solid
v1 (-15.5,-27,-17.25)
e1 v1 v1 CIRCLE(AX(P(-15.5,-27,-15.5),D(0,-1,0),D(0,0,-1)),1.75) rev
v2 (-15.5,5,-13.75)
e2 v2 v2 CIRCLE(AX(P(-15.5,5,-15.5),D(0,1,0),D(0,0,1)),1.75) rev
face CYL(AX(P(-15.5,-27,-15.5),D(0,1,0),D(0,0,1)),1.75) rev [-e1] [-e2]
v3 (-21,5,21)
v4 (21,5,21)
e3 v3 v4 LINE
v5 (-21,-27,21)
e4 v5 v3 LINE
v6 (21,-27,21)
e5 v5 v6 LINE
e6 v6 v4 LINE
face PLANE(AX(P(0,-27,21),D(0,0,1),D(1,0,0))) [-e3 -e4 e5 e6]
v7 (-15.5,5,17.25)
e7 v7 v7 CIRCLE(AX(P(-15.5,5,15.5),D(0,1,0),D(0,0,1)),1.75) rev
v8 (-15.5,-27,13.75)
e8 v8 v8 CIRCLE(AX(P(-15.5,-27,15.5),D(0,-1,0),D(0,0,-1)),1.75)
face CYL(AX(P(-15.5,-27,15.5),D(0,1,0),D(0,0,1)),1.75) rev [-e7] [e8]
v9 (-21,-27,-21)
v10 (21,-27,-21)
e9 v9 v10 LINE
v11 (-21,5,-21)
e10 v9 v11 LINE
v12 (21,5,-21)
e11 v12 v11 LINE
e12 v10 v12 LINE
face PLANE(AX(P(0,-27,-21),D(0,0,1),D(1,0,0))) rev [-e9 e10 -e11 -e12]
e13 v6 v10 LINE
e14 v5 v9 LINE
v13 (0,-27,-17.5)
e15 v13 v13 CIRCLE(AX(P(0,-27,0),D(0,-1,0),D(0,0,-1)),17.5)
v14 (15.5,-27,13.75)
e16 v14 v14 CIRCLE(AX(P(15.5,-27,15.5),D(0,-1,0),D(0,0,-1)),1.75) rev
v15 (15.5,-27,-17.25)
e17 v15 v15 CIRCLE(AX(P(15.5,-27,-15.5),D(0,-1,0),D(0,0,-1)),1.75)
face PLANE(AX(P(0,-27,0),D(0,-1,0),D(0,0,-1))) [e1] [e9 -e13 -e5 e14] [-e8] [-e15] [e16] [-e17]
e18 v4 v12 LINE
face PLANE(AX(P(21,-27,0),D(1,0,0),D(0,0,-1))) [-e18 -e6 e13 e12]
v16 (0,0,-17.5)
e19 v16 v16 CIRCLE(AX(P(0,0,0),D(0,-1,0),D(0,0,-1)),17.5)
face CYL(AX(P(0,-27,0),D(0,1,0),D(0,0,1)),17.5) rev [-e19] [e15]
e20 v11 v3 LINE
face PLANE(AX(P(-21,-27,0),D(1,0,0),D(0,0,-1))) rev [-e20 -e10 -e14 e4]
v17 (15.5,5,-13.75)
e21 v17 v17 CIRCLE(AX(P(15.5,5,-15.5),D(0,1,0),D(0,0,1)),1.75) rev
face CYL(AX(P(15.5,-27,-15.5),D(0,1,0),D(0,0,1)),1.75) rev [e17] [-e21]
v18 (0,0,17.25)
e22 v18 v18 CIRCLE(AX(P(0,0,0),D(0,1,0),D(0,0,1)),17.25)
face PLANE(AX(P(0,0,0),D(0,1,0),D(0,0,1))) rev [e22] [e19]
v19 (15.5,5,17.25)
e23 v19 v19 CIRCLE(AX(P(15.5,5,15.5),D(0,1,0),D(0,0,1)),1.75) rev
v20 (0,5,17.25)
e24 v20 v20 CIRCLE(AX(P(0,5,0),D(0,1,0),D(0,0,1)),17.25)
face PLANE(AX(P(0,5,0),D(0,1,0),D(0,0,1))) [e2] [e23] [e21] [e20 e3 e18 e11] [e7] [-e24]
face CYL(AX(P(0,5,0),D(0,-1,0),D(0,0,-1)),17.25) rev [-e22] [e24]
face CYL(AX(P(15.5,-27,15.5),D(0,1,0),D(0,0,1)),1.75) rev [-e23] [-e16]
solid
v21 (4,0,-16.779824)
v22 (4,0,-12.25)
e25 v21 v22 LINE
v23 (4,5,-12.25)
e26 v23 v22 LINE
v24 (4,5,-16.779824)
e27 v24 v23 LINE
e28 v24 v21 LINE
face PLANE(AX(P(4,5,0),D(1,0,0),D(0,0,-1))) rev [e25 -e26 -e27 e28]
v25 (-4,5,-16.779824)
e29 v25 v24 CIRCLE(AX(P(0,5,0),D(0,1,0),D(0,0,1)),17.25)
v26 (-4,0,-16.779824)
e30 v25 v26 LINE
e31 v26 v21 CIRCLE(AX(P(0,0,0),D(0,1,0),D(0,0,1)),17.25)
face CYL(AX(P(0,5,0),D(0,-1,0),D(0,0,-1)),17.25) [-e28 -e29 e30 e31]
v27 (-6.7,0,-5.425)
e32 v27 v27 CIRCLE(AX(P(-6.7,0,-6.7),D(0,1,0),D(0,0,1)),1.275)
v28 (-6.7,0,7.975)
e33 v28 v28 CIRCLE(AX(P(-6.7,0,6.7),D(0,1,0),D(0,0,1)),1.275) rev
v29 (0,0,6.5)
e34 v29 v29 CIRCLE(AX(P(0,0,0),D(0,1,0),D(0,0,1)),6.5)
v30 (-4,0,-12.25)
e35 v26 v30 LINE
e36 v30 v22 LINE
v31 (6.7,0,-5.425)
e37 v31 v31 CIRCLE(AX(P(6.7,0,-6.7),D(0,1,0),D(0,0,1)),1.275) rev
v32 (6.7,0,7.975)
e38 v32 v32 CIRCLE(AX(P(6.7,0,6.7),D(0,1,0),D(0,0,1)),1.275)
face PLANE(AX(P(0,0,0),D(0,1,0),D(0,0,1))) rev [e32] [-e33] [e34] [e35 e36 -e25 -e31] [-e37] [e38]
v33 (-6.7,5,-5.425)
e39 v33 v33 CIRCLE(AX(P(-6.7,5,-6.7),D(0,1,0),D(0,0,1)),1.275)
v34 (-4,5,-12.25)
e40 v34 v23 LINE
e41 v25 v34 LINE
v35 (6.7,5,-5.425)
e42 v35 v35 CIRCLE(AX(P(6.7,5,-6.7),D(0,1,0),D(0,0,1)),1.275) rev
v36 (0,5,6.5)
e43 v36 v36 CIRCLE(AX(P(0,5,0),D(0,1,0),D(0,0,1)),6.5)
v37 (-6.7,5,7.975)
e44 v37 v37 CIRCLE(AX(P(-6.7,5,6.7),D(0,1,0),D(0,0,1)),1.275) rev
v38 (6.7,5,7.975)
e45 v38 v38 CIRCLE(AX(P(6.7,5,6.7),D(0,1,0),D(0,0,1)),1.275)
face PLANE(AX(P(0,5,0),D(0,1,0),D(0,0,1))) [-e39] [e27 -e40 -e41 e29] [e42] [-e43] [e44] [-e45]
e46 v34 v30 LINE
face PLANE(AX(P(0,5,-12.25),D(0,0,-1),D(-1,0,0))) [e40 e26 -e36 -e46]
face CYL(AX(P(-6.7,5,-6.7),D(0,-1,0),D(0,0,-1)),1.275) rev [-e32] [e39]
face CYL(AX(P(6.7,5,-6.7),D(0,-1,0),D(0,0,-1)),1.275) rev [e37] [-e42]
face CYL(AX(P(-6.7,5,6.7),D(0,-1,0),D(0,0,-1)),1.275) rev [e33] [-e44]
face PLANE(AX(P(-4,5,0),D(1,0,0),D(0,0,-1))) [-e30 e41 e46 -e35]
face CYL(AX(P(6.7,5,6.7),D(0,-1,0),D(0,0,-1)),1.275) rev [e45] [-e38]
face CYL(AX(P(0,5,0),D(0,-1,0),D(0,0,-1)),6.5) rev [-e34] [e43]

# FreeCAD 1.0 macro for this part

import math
import FreeCAD as App
import Part
import Sketcher
from FreeCAD import Vector
Q = App.Units.Quantity


def add_polygon(sketch, points):
    """Adds a closed chain of lines whose ends are joined by coincident constraints."""
    first, n = sketch.GeometryCount, len(points)
    for a, b in zip(points, points[1:] + points[:1]):
        sketch.addGeometry(Part.LineSegment(App.Vector(*a, 0), App.Vector(*b, 0)), False)
    for i in range(n):
        sketch.addConstraint(Sketcher.Constraint("Coincident", first + i, 2, first + (i + 1) % n, 1))

doc = App.newDocument("Part")
body = doc.addObject("PartDesign::Body", "Body")

# Sketch on XZ plane
sketch1 = body.newObject("Sketcher::SketchObject", "Sketch")
sketch1.AttachmentSupport = (doc.getObject("XZ_Plane"), [""])
sketch1.MapMode = "FlatFace"
sketch1.addGeometry(Part.LineSegment(Vector(-4, -12.25, 0), Vector(-4, -16.779824, 0)), False)
sketch1.addGeometry(Part.ArcOfCircle(Part.Circle(Vector(0, 0, 0), Vector(0, 0, 1), 17.25), math.radians(0), math.radians(256.59198)), False)
sketch1.addGeometry(Part.ArcOfCircle(Part.Circle(Vector(0, 0, 0), Vector(0, 0, 1), 17.25), math.radians(-76.59198), math.radians(0)), False)
sketch1.addGeometry(Part.LineSegment(Vector(4, -16.779824, 0), Vector(4, -12.25, 0)), False)
sketch1.addGeometry(Part.LineSegment(Vector(4, -12.25, 0), Vector(-4, -12.25, 0)), False)
sketch1.addGeometry(Part.Circle(Vector(-6.7, 6.7, 0), Vector(0, 0, 1), 1.275), False)
sketch1.addGeometry(Part.Circle(Vector(6.7, 6.7, 0), Vector(0, 0, 1), 1.275), False)
sketch1.addGeometry(Part.Circle(Vector(0, 0, 0), Vector(0, 0, 1), 6.5), False)
sketch1.addGeometry(Part.Circle(Vector(-6.7, -6.7, 0), Vector(0, 0, 1), 1.275), False)
sketch1.addGeometry(Part.Circle(Vector(6.7, -6.7, 0), Vector(0, 0, 1), 1.275), False)
sketch1.addConstraint(Sketcher.Constraint("Coincident", 0, 2, 1, 2))
sketch1.addConstraint(Sketcher.Constraint("Tangent", 1, 1, 2, 2))
sketch1.addConstraint(Sketcher.Constraint("Coincident", 2, 1, 3, 1))
sketch1.addConstraint(Sketcher.Constraint("Coincident", 3, 2, 4, 1))
sketch1.addConstraint(Sketcher.Constraint("Coincident", 4, 2, 0, 1))
sketch1.addConstraint(Sketcher.Constraint("Vertical", 0))
sketch1.addConstraint(Sketcher.Constraint("Vertical", 3))
sketch1.addConstraint(Sketcher.Constraint("Horizontal", 4))
sketch1.addConstraint(Sketcher.Constraint("Coincident", 1, 3, -1, 1))
sketch1.addConstraint(Sketcher.Constraint("Coincident", 7, 3, -1, 1))
sketch1.addConstraint(Sketcher.Constraint("Equal", 1, 2))
sketch1.addConstraint(Sketcher.Constraint("Equal", 5, 6))
sketch1.addConstraint(Sketcher.Constraint("Equal", 6, 8))
sketch1.addConstraint(Sketcher.Constraint("Equal", 8, 9))
sketch1.addConstraint(Sketcher.Constraint("Symmetric", 6, 3, 8, 3, -1, 1))
sketch1.addConstraint(Sketcher.Constraint("Symmetric", 5, 3, 9, 3, -1, 1))
sketch1.addConstraint(Sketcher.Constraint("Symmetric", 5, 3, 6, 3, -2))
sketch1.addConstraint(Sketcher.Constraint("PointOnObject", 1, 1, -1))
sketch1.addConstraint(Sketcher.Constraint("Horizontal", 0, 2, 2, 1))
sketch1.addConstraint(Sketcher.Constraint("Diameter", 7, Q("13 mm")))
sketch1.addConstraint(Sketcher.Constraint("Diameter", 5, Q("2.55 mm")))
sketch1.addConstraint(Sketcher.Constraint("DistanceX", 4, 2, 4, 1, Q("8 mm")))
sketch1.addConstraint(Sketcher.Constraint("Radius", 1, Q("17.25 mm")))
sketch1.addConstraint(Sketcher.Constraint("DistanceX", 5, 3, -1, 1, Q("6.7 mm")))
sketch1.addConstraint(Sketcher.Constraint("DistanceY", -1, 1, 5, 3, Q("6.7 mm")))
sketch1.addConstraint(Sketcher.Constraint("DistanceY", 3, 2, -1, 1, Q("12.25 mm")))
pad1 = body.newObject("PartDesign::Pad", "Pad")
pad1.Profile = sketch1
pad1.Length = 5
pad1.Reversed = True
body2 = doc.addObject("PartDesign::Body", "Body001")

# Sketch on XZ plane
sketch2 = body2.newObject("Sketcher::SketchObject", "Sketch001")
sketch2.AttachmentSupport = (doc.getObject("XZ_Plane001"), [""])
sketch2.MapMode = "FlatFace"
add_polygon(sketch2, [(-21, 21), (-21, -21), (21, -21), (21, 21)])  # lines 0-3
sketch2.addGeometry(Part.Circle(Vector(-15.5, -15.5, 0), Vector(0, 0, 1), 1.75), False)  # 4
sketch2.addGeometry(Part.Circle(Vector(15.5, -15.5, 0), Vector(0, 0, 1), 1.75), False)  # 5
sketch2.addGeometry(Part.Circle(Vector(-15.5, 15.5, 0), Vector(0, 0, 1), 1.75), False)  # 6
sketch2.addGeometry(Part.Circle(Vector(0, 0, 0), Vector(0, 0, 1), 17.5), False)  # 7
sketch2.addGeometry(Part.Circle(Vector(15.5, 15.5, 0), Vector(0, 0, 1), 1.75), False)  # 8
sketch2.addConstraint(Sketcher.Constraint("Vertical", 0))
sketch2.addConstraint(Sketcher.Constraint("Horizontal", 1))
sketch2.addConstraint(Sketcher.Constraint("Vertical", 2))
sketch2.addConstraint(Sketcher.Constraint("Horizontal", 3))
sketch2.addConstraint(Sketcher.Constraint("Coincident", 7, 3, -1, 1))
sketch2.addConstraint(Sketcher.Constraint("Equal", 4, 5))
sketch2.addConstraint(Sketcher.Constraint("Equal", 5, 6))
sketch2.addConstraint(Sketcher.Constraint("Equal", 6, 8))
sketch2.addConstraint(Sketcher.Constraint("Symmetric", 5, 3, 6, 3, -1, 1))
sketch2.addConstraint(Sketcher.Constraint("Symmetric", 4, 3, 8, 3, -1, 1))
sketch2.addConstraint(Sketcher.Constraint("Symmetric", 0, 2, 2, 2, -1, 1))
sketch2.addConstraint(Sketcher.Constraint("Symmetric", 4, 3, 5, 3, -2))
sketch2.addConstraint(Sketcher.Constraint("Equal", 3, 0))
sketch2.addConstraint(Sketcher.Constraint("Diameter", 7, Q("35 mm")))
sketch2.addConstraint(Sketcher.Constraint("Diameter", 4, Q("3.5 mm")))
sketch2.addConstraint(Sketcher.Constraint("DistanceX", 1, 1, 1, 2, Q("42 mm")))
sketch2.addConstraint(Sketcher.Constraint("DistanceX", 4, 3, 5, 3, Q("31 mm")))
sketch2.addConstraint(Sketcher.Constraint("DistanceY", 4, 3, 6, 3, Q("31 mm")))
pad2 = body2.newObject("PartDesign::Pad", "Pad001")
pad2.Profile = sketch2
pad2.Length = 27

# Sketch on XZ plane
sketch3 = body2.newObject("Sketcher::SketchObject", "Sketch002")
sketch3.AttachmentSupport = (doc.getObject("XZ_Plane001"), [""])
sketch3.MapMode = "FlatFace"
add_polygon(sketch3, [(-21, -21), (-21, 21), (21, 21), (21, -21)])  # lines 0-3
sketch3.addGeometry(Part.Circle(Vector(-15.5, 15.5, 0), Vector(0, 0, 1), 1.75), False)  # 4
sketch3.addGeometry(Part.Circle(Vector(15.5, 15.5, 0), Vector(0, 0, 1), 1.75), False)  # 5
sketch3.addGeometry(Part.Circle(Vector(-15.5, -15.5, 0), Vector(0, 0, 1), 1.75), False)  # 6
sketch3.addGeometry(Part.Circle(Vector(15.5, -15.5, 0), Vector(0, 0, 1), 1.75), False)  # 7
sketch3.addGeometry(Part.Circle(Vector(0, 0, 0), Vector(0, 0, 1), 17.25), False)  # 8
sketch3.addConstraint(Sketcher.Constraint("Vertical", 0))
sketch3.addConstraint(Sketcher.Constraint("Horizontal", 1))
sketch3.addConstraint(Sketcher.Constraint("Vertical", 2))
sketch3.addConstraint(Sketcher.Constraint("Horizontal", 3))
sketch3.addConstraint(Sketcher.Constraint("Coincident", 8, 3, -1, 1))
sketch3.addConstraint(Sketcher.Constraint("Equal", 4, 5))
sketch3.addConstraint(Sketcher.Constraint("Equal", 5, 6))
sketch3.addConstraint(Sketcher.Constraint("Equal", 6, 7))
sketch3.addConstraint(Sketcher.Constraint("Symmetric", 5, 3, 6, 3, -1, 1))
sketch3.addConstraint(Sketcher.Constraint("Symmetric", 4, 3, 7, 3, -1, 1))
sketch3.addConstraint(Sketcher.Constraint("Symmetric", 0, 2, 2, 2, -1, 1))
sketch3.addConstraint(Sketcher.Constraint("Symmetric", 4, 3, 5, 3, -2))
sketch3.addConstraint(Sketcher.Constraint("Equal", 3, 0))
sketch3.addConstraint(Sketcher.Constraint("Diameter", 4, Q("3.5 mm")))
sketch3.addConstraint(Sketcher.Constraint("Diameter", 8, Q("34.5 mm")))
sketch3.addConstraint(Sketcher.Constraint("DistanceX", 1, 1, 1, 2, Q("42 mm")))
sketch3.addConstraint(Sketcher.Constraint("DistanceX", 4, 3, 5, 3, Q("31 mm")))
sketch3.addConstraint(Sketcher.Constraint("DistanceY", 6, 3, 4, 3, Q("31 mm")))
pad3 = body2.newObject("PartDesign::Pad", "Pad002")
pad3.Profile = sketch3
pad3.Length = 5
pad3.Reversed = True

doc.recompute()
